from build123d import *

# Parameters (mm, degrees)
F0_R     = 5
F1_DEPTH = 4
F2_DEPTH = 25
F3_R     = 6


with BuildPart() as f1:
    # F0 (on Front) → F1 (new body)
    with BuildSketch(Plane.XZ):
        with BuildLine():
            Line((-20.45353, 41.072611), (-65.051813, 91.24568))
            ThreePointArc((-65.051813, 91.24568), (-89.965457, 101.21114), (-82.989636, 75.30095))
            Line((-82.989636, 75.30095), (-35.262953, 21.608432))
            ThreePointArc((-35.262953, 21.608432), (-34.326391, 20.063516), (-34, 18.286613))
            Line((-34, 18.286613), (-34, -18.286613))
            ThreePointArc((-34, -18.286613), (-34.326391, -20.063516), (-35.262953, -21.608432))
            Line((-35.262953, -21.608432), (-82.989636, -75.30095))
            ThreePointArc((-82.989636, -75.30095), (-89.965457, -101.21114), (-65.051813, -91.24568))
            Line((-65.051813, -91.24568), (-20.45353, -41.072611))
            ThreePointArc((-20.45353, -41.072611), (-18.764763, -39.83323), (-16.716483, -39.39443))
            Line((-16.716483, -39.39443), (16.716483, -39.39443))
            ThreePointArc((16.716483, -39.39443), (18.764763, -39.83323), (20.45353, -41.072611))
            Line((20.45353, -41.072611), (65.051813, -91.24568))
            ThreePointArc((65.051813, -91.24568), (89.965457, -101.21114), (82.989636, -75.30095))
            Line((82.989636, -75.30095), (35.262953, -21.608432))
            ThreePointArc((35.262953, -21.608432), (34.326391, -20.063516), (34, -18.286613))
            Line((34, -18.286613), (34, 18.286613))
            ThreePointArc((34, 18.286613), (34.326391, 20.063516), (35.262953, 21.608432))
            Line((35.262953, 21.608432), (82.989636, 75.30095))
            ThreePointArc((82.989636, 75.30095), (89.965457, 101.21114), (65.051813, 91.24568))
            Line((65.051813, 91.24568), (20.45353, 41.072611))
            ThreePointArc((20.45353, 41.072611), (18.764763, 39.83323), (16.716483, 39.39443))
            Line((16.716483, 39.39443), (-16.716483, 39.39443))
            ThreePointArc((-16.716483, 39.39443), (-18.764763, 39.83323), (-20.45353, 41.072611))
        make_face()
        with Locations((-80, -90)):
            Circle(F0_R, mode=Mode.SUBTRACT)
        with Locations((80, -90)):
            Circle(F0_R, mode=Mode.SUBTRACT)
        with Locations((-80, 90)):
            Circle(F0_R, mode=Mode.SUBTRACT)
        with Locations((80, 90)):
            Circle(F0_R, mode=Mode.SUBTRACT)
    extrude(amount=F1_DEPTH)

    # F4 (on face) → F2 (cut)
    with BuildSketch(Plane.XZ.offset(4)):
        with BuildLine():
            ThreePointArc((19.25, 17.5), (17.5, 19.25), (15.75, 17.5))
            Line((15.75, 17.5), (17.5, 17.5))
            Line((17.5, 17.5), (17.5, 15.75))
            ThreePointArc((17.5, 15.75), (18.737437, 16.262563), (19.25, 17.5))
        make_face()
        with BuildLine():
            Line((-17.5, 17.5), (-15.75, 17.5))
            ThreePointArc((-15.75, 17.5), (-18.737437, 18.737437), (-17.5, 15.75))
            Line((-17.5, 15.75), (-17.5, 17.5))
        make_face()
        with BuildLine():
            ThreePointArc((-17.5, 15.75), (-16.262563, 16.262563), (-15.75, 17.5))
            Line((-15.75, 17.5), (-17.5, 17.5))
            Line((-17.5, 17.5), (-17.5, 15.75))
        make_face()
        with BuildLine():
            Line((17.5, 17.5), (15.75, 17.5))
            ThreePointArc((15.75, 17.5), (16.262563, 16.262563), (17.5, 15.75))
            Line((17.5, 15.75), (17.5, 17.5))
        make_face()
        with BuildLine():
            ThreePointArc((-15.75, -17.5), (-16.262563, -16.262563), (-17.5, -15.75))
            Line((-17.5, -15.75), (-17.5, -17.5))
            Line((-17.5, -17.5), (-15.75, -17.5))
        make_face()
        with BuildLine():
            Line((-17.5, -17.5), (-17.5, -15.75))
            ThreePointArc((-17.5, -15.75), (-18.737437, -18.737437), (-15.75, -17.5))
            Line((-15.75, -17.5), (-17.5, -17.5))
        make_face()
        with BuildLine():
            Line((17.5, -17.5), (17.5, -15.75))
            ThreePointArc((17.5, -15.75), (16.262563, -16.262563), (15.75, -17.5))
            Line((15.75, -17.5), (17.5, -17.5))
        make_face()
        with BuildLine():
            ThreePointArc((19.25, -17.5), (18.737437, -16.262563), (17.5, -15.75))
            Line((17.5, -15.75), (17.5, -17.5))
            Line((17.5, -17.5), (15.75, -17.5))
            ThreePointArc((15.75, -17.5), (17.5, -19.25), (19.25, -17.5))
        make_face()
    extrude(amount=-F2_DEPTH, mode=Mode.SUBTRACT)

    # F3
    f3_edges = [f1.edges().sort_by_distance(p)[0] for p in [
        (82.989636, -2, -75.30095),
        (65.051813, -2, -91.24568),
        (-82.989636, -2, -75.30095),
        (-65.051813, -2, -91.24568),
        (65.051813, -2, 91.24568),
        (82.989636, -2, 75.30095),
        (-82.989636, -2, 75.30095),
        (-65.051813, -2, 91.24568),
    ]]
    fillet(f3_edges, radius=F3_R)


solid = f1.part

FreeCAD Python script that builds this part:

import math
import FreeCAD as App
import Part
import Sketcher
from FreeCAD import Vector
Q = App.Units.Quantity


def edges_at(feature, points):
    """Names of the edges that pass closest to the given points."""
    edges = feature.Shape.Edges
    near = lambda p: min(range(len(edges)), key=lambda i: edges[i].distToShape(Part.Vertex(*p))[0])
    return sorted({f"Edge{near(p) + 1}" for p in points})

doc = App.newDocument("Part")
body = doc.addObject("PartDesign::Body", "Body")

sketch1 = doc.addObject("Sketcher::SketchObject", "Sketch")
body.addObject(sketch1)
sketch1.AttachmentSupport = (doc.XZ_Plane, [""])
sketch1.MapMode = "FlatFace"
sketch1.addGeometry([
    Part.LineSegment(Vector(-20.45353, 41.072611, 0), Vector(-65.051813, 91.24568, 0)),
    Part.ArcOfCircle(Part.Circle(Vector(-80, 90, 0), Vector(0, 0, 1), 15), math.radians(4.763633), math.radians(258.50344)),
    Part.LineSegment(Vector(-82.989636, 75.30095, 0), Vector(-35.262953, 21.608432, 0)),
    Part.ArcOfCircle(Part.Circle(Vector(-38.999994, 18.286616, 0), Vector(0, 0, 1), 4.999994), math.radians(-0.000031), math.radians(41.63356)),
    Part.LineSegment(Vector(-34, 18.286613, 0), Vector(-34, -18.286613, 0)),
    Part.ArcOfCircle(Part.Circle(Vector(-38.999994, -18.286616, 0), Vector(0, 0, 1), 4.999994), math.radians(-41.63356), math.radians(0.000031)),
    Part.LineSegment(Vector(-35.262953, -21.608432, 0), Vector(-82.989636, -75.30095, 0)),
    Part.ArcOfCircle(Part.Circle(Vector(-80, -90, 0), Vector(0, 0, 1), 15), math.radians(101.49656), math.radians(355.236367)),
    Part.LineSegment(Vector(-65.051813, -91.24568, 0), Vector(-20.45353, -41.072611, 0)),
    Part.ArcOfCircle(Part.Circle(Vector(-16.716481, -44.394435, 0), Vector(0, 0, 1), 5.000005), math.radians(90.000022), math.radians(138.366439)),
    Part.LineSegment(Vector(-16.716483, -39.39443, 0), Vector(16.716483, -39.39443, 0)),
    Part.ArcOfCircle(Part.Circle(Vector(16.716481, -44.394435, 0), Vector(0, 0, 1), 5.000005), math.radians(41.633561), math.radians(89.999978)),
    Part.LineSegment(Vector(20.45353, -41.072611, 0), Vector(65.051813, -91.24568, 0)),
    Part.ArcOfCircle(Part.Circle(Vector(80, -90, 0), Vector(0, 0, 1), 15), math.radians(-175.236367), math.radians(78.50344)),
    Part.LineSegment(Vector(82.989636, -75.30095, 0), Vector(35.262953, -21.608432, 0)),
    Part.ArcOfCircle(Part.Circle(Vector(38.999994, -18.286616, 0), Vector(0, 0, 1), 4.999994), math.radians(179.999969), math.radians(221.63356)),
    Part.LineSegment(Vector(34, -18.286613, 0), Vector(34, 18.286613, 0)),
    Part.ArcOfCircle(Part.Circle(Vector(38.999994, 18.286616, 0), Vector(0, 0, 1), 4.999994), math.radians(138.36644), math.radians(180.000031)),
    Part.LineSegment(Vector(35.262953, 21.608432, 0), Vector(82.989636, 75.30095, 0)),
    Part.ArcOfCircle(Part.Circle(Vector(80, 90, 0), Vector(0, 0, 1), 15), math.radians(-78.50344), math.radians(175.236367)),
    Part.LineSegment(Vector(65.051813, 91.24568, 0), Vector(20.45353, 41.072611, 0)),
    Part.ArcOfCircle(Part.Circle(Vector(16.716481, 44.394435, 0), Vector(0, 0, 1), 5.000005), math.radians(-89.999978), math.radians(-41.633561)),
    Part.LineSegment(Vector(16.716483, 39.39443, 0), Vector(-16.716483, 39.39443, 0)),
    Part.ArcOfCircle(Part.Circle(Vector(-16.716481, 44.394435, 0), Vector(0, 0, 1), 5.000005), math.radians(-138.366439), math.radians(-90.000022)),
    Part.Circle(Vector(-80, -90, 0), Vector(0, 0, 1), 5),
    Part.Circle(Vector(80, -90, 0), Vector(0, 0, 1), 5),
    Part.Circle(Vector(-80, 90, 0), Vector(0, 0, 1), 5),
    Part.Circle(Vector(80, 90, 0), Vector(0, 0, 1), 5),
], False)
sketch1.addConstraint([
    Sketcher.Constraint("Coincident", 0, 2, 1, 1),
    Sketcher.Constraint("Coincident", 1, 2, 2, 1),
    Sketcher.Constraint("Tangent", 2, 2, 3, 2),
    Sketcher.Constraint("Tangent", 3, 1, 4, 1),
    Sketcher.Constraint("Tangent", 4, 2, 5, 2),
    Sketcher.Constraint("Tangent", 5, 1, 6, 1),
    Sketcher.Constraint("Coincident", 6, 2, 7, 1),
    Sketcher.Constraint("Coincident", 7, 2, 8, 1),
    Sketcher.Constraint("Tangent", 8, 2, 9, 2),
    Sketcher.Constraint("Tangent", 9, 1, 10, 1),
    Sketcher.Constraint("Tangent", 10, 2, 11, 2),
    Sketcher.Constraint("Tangent", 11, 1, 12, 1),
    Sketcher.Constraint("Coincident", 12, 2, 13, 1),
    Sketcher.Constraint("Coincident", 13, 2, 14, 1),
    Sketcher.Constraint("Tangent", 14, 2, 15, 2),
    Sketcher.Constraint("Tangent", 15, 1, 16, 1),
    Sketcher.Constraint("Tangent", 16, 2, 17, 2),
    Sketcher.Constraint("Tangent", 17, 1, 18, 1),
    Sketcher.Constraint("Coincident", 18, 2, 19, 1),
    Sketcher.Constraint("Coincident", 19, 2, 20, 1),
    Sketcher.Constraint("Tangent", 20, 2, 21, 2),
    Sketcher.Constraint("Tangent", 21, 1, 22, 1),
    Sketcher.Constraint("Tangent", 22, 2, 23, 2),
    Sketcher.Constraint("Tangent", 23, 1, 0, 1),
    Sketcher.Constraint("Vertical", 4),
    Sketcher.Constraint("Horizontal", 10),
    Sketcher.Constraint("Vertical", 16),
    Sketcher.Constraint("Horizontal", 22),
    Sketcher.Constraint("Coincident", 24, 3, 7, 3),
    Sketcher.Constraint("Coincident", 25, 3, 13, 3),
    Sketcher.Constraint("Coincident", 26, 3, 1, 3),
    Sketcher.Constraint("Coincident", 27, 3, 19, 3),
    Sketcher.Constraint("Equal", 3, 5),
    Sketcher.Constraint("Equal", 1, 7),
    Sketcher.Constraint("Equal", 9, 11),
    Sketcher.Constraint("Equal", 7, 13),
    Sketcher.Constraint("Equal", 5, 15),
    Sketcher.Constraint("Equal", 15, 17),
    Sketcher.Constraint("Equal", 13, 19),
    Sketcher.Constraint("Equal", 11, 21),
    Sketcher.Constraint("Equal", 21, 23),
    Sketcher.Constraint("Equal", 24, 25),
    Sketcher.Constraint("Equal", 25, 26),
    Sketcher.Constraint("Equal", 26, 27),
    Sketcher.Constraint("Symmetric", 1, 3, 13, 3, -1, 1),
    Sketcher.Constraint("Symmetric", 3, 3, 15, 3, -1, 1),
    Sketcher.Constraint("Symmetric", 7, 3, 19, 3, -1, 1),
    Sketcher.Constraint("Symmetric", 9, 3, 21, 3, -1, 1),
    Sketcher.Constraint("Symmetric", 5, 1, 17, 1, -1, 1),
    Sketcher.Constraint("Symmetric", 11, 1, 23, 1, -1, 1),
    Sketcher.Constraint("Symmetric", 7, 3, 13, 3, -2),
    Sketcher.Constraint("Symmetric", 8, 2, 11, 1, -2),
    Sketcher.Constraint("Symmetric", 5, 1, 14, 2, -2),
    Sketcher.Constraint("Parallel", 0, 2),
    Sketcher.Constraint("Parallel", 6, 8),
    Sketcher.Constraint("Parallel", 18, 20),
    Sketcher.Constraint("Diameter", 24, Q("10 mm")),
    Sketcher.Constraint("Radius", 1, Q("15 mm")),
    Sketcher.Constraint("DistanceX", 1, 3, -1, 1, Q("80 mm")),
    Sketcher.Constraint("DistanceY", -1, 1, 1, 3, Q("90 mm")),
    Sketcher.Constraint("DistanceX", 3, 1, -1, 1, Q("34 mm")),
    Sketcher.Constraint("Radius", 3, Q("4.999994 mm")),
    Sketcher.Constraint("Radius", 9, Q("5.000005 mm")),
    Sketcher.Constraint("DistanceY", 8, 2, 4, 2, Q("22.785998 mm")),
    Sketcher.Constraint("Distance", 2, Q("71.838171 mm")),
    Sketcher.Constraint("DistanceX", 10, 1, 10, 2, Q("33.432966 mm")),
    Sketcher.Constraint("DistanceY", 4, 2, 4, 1, Q("36.573226 mm")),
])
pad1 = doc.addObject("PartDesign::Pad", "Pad")
body.addObject(pad1)
pad1.Profile = sketch1
pad1.Length = 4

sketch2 = doc.addObject("Sketcher::SketchObject", "Sketch001")
body.addObject(sketch2)
sketch2.AttachmentSupport = (doc.XZ_Plane, [""])
sketch2.MapMode = "FlatFace"
sketch2.AttachmentOffset = App.Placement(Vector(0, 0, 4), App.Rotation())
sketch2.addGeometry([
    Part.ArcOfCircle(Part.Circle(Vector(17.5, 17.5, 0), Vector(0, 0, 1), 1.75), math.radians(0), math.radians(180)),
    Part.ArcOfCircle(Part.Circle(Vector(17.5, 17.5, 0), Vector(0, 0, 1), 1.75), math.radians(179.999985), math.radians(270.000015)),
    Part.ArcOfCircle(Part.Circle(Vector(17.5, 17.5, 0), Vector(0, 0, 1), 1.75), math.radians(-90.000015), math.radians(0.000015)),
    Part.ArcOfCircle(Part.Circle(Vector(-17.5, 17.5, 0), Vector(0, 0, 1), 1.75), math.radians(-0.000003), math.radians(270.000003)),
    Part.ArcOfCircle(Part.Circle(Vector(-17.5, 17.5, 0), Vector(0, 0, 1), 1.75), math.radians(-90.000015), math.radians(0.000015)),
    Part.ArcOfCircle(Part.Circle(Vector(-17.5, -17.5, 0), Vector(0, 0, 1), 1.75), math.radians(-0.000015), math.radians(90.000015)),
    Part.ArcOfCircle(Part.Circle(Vector(-17.5, -17.5, 0), Vector(0, 0, 1), 1.75), math.radians(89.999997), math.radians(360.000003)),
    Part.ArcOfCircle(Part.Circle(Vector(17.5, -17.5, 0), Vector(0, 0, 1), 1.75), math.radians(89.999985), math.radians(180.000015)),
    Part.ArcOfCircle(Part.Circle(Vector(17.5, -17.5, 0), Vector(0, 0, 1), 1.75), math.radians(180), math.radians(360)),
    Part.ArcOfCircle(Part.Circle(Vector(17.5, -17.5, 0), Vector(0, 0, 1), 1.75), math.radians(-0.000015), math.radians(90.000015)),
], False)
sketch2.addConstraint([
    Sketcher.Constraint("Tangent", 0, 2, 1, 1),
    Sketcher.Constraint("Tangent", 1, 2, 2, 1),
    Sketcher.Constraint("Tangent", 2, 2, 0, 1),
    Sketcher.Constraint("Tangent", 3, 1, 4, 2),
    Sketcher.Constraint("Coincident", 4, 1, 3, 2),
    Sketcher.Constraint("Tangent", 5, 1, 6, 2),
    Sketcher.Constraint("Coincident", 6, 1, 5, 2),
    Sketcher.Constraint("Tangent", 7, 2, 8, 1),
    Sketcher.Constraint("Tangent", 8, 2, 9, 1),
    Sketcher.Constraint("Tangent", 9, 2, 7, 1),
    Sketcher.Constraint("Equal", 2, 3),
    Sketcher.Constraint("Equal", 4, 5),
    Sketcher.Constraint("Equal", 6, 7),
    Sketcher.Constraint("Symmetric", 0, 3, 5, 3, -1, 1),
    Sketcher.Constraint("Symmetric", 3, 3, 7, 3, -1, 1),
    Sketcher.Constraint("Symmetric", 0, 3, 3, 3, -2),
    Sketcher.Constraint("Horizontal", 4, 3, 0, 2),
    Sketcher.Constraint("Horizontal", 0, 2, 2, 2),
    Sketcher.Constraint("Horizontal", 2, 2, 3, 1),
    Sketcher.Constraint("Horizontal", 9, 3, 5, 1),
    Sketcher.Constraint("Horizontal", 5, 1, 7, 2),
    Sketcher.Constraint("Horizontal", 7, 2, 8, 2),
    Sketcher.Constraint("Vertical", 9, 3, 1, 2),
    Sketcher.Constraint("Vertical", 6, 3, 4, 1),
    Sketcher.Constraint("Vertical", 4, 1, 6, 1),
    Sketcher.Constraint("Vertical", 1, 2, 9, 2),
    Sketcher.Constraint("Radius", 0, Q("1.75 mm")),
    Sketcher.Constraint("DistanceX", 3, 3, 1, 3, Q("35 mm")),
    Sketcher.Constraint("DistanceY", 5, 3, 4, 3, Q("34.999999 mm")),
])
pocket1 = doc.addObject("PartDesign::Pocket", "Pocket")
body.addObject(pocket1)
pocket1.Profile = sketch2
pocket1.Length = 25
doc.recompute()

fillet = doc.addObject("PartDesign::Fillet", "Fillet")
body.addObject(fillet)
fillet.Base = (pocket1, edges_at(pocket1, [
    (82.99, -2, -75.301),
    (65.052, -2, -91.246),
    (-82.99, -2, -75.301),
    (-65.052, -2, -91.246),
    (65.052, -2, 91.246),
    (82.99, -2, 75.301),
    (-82.99, -2, 75.301),
    (-65.052, -2, 91.246),
]))
fillet.Radius = 6

doc.recompute()
